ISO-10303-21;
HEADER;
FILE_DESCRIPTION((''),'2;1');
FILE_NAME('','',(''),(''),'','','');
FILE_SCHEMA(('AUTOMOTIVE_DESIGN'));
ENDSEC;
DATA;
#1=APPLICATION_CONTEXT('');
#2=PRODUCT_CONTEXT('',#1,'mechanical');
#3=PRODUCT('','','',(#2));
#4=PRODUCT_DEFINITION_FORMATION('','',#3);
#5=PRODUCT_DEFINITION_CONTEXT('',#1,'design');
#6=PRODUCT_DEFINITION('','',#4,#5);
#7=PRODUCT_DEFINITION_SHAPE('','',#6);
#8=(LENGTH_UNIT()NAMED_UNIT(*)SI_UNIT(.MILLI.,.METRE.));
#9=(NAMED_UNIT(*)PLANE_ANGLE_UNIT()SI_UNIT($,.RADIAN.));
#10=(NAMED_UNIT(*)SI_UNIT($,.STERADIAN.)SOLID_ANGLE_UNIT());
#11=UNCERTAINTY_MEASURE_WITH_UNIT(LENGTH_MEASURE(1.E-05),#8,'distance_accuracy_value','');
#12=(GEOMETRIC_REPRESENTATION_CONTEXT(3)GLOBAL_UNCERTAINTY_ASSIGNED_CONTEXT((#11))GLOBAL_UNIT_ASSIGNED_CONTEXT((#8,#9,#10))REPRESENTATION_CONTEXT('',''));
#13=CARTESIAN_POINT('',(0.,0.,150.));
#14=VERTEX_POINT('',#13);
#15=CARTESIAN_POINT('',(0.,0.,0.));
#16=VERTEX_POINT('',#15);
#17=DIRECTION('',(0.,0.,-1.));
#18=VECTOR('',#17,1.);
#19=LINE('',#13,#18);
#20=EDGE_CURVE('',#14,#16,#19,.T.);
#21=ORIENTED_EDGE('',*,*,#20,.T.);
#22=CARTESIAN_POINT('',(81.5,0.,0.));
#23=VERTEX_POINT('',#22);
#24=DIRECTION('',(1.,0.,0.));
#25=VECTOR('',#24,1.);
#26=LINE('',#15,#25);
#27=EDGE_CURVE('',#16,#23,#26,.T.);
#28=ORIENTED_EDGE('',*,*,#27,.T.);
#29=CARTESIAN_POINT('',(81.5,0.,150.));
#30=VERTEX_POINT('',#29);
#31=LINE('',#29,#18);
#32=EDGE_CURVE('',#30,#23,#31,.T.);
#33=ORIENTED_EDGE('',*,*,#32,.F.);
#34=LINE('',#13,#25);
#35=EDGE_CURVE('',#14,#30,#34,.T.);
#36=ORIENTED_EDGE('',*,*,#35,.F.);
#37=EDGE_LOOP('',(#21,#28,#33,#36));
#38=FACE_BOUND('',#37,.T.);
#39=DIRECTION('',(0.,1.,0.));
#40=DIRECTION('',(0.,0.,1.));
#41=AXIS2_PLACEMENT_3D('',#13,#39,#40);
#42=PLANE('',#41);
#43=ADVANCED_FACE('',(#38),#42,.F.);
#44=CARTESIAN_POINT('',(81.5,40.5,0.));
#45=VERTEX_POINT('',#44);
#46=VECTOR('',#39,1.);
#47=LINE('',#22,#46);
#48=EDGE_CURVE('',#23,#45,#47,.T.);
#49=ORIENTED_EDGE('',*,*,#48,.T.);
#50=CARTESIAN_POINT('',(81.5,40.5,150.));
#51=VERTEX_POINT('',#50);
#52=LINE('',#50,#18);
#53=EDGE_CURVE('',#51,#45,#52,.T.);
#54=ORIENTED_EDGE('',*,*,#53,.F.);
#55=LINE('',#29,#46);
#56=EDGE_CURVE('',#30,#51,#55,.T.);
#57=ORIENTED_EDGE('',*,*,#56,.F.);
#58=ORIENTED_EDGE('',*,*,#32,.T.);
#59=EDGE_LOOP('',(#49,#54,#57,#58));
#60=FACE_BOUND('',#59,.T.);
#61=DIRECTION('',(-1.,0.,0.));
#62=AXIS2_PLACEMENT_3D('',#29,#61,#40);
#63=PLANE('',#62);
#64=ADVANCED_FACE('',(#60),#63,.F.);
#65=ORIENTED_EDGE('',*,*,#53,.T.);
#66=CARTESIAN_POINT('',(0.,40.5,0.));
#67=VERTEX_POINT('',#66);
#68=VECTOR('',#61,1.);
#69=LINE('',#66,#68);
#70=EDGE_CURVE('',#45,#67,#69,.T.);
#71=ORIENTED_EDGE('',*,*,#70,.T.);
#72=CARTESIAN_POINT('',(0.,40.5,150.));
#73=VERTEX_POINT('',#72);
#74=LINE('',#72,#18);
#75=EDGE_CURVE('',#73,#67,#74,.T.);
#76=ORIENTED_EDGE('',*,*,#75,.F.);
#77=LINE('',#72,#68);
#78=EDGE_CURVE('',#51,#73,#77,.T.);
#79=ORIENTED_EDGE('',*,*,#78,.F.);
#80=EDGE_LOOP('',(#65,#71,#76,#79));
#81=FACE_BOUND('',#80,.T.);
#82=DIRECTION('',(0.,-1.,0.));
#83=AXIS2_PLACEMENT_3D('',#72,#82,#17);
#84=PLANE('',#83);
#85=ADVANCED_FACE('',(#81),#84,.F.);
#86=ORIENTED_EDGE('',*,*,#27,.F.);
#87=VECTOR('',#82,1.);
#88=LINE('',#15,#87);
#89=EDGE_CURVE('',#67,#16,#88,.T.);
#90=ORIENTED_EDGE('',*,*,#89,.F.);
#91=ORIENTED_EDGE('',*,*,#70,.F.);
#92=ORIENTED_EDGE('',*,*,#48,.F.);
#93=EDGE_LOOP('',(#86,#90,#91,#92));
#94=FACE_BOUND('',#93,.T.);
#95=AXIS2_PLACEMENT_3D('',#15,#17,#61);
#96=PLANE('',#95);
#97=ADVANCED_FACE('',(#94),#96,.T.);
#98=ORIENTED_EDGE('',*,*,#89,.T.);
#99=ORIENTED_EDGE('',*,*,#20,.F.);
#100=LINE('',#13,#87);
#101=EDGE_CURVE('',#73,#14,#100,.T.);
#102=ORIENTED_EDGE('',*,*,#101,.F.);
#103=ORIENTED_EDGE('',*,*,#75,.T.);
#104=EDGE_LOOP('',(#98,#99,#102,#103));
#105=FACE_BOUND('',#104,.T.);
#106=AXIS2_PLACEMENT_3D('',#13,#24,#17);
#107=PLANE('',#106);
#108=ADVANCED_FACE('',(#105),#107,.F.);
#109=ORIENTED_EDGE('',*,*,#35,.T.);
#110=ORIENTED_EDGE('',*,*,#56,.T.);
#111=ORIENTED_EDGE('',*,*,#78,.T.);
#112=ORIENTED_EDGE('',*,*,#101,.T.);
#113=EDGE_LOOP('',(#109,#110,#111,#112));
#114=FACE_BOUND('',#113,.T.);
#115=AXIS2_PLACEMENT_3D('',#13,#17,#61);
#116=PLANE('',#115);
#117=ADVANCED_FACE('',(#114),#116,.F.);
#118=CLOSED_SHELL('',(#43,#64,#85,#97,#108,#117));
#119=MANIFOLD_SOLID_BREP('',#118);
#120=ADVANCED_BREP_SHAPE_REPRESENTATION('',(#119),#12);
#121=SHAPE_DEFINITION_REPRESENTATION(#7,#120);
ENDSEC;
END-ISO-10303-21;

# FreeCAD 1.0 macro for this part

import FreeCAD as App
import Part
import Sketcher


def add_polygon(sketch, points):
    """Adds a closed chain of lines whose ends are joined by coincident constraints."""
    first, n = sketch.GeometryCount, len(points)
    for a, b in zip(points, points[1:] + points[:1]):
        sketch.addGeometry(Part.LineSegment(App.Vector(*a, 0), App.Vector(*b, 0)), False)
    for i in range(n):
        sketch.addConstraint(Sketcher.Constraint("Coincident", first + i, 2, first + (i + 1) % n, 1))

doc = App.newDocument("Part")
params = doc.addObject("Spreadsheet::Sheet", "Params")
for row, (alias, value) in enumerate([
    ("sketch1_width", "81.5 mm"),
    ("sketch1_height", "40.5 mm"),
    ("pad1_length", "150 mm"),
], start=1):
    params.set(f"A{row}", alias)
    params.set(f"B{row}", "=" + value)
    params.setAlias(f"B{row}", alias)

body = doc.addObject("PartDesign::Body", "Body")

# Sketch on XY plane
sketch1 = body.newObject("Sketcher::SketchObject", "Sketch")
sketch1.AttachmentSupport = (doc.getObject("XY_Plane"), [""])
sketch1.MapMode = "FlatFace"
add_polygon(sketch1, [(0, 40), (0, 0), (82, 0), (82, 40)])  # lines 0-3
sketch1.addConstraint(Sketcher.Constraint("Vertical", 0))
sketch1.addConstraint(Sketcher.Constraint("Horizontal", 1))
sketch1.addConstraint(Sketcher.Constraint("Vertical", 2))
sketch1.addConstraint(Sketcher.Constraint("Horizontal", 3))
sketch1.addConstraint(Sketcher.Constraint("Coincident", 0, 2, -1, 1))
sketch1.addConstraint(Sketcher.Constraint("DistanceX", 1, 1, 1, 2, 81.5))
sketch1.addConstraint(Sketcher.Constraint("DistanceY", 0, 2, 0, 1, 40.5))
sketch1.setExpression("Constraints[9]", "Params.sketch1_width")
sketch1.setExpression("Constraints[10]", "Params.sketch1_height")
pad1 = body.newObject("PartDesign::Pad", "Pad")
pad1.Profile = sketch1
pad1.setExpression("Length", "Params.pad1_length")

doc.recompute()
